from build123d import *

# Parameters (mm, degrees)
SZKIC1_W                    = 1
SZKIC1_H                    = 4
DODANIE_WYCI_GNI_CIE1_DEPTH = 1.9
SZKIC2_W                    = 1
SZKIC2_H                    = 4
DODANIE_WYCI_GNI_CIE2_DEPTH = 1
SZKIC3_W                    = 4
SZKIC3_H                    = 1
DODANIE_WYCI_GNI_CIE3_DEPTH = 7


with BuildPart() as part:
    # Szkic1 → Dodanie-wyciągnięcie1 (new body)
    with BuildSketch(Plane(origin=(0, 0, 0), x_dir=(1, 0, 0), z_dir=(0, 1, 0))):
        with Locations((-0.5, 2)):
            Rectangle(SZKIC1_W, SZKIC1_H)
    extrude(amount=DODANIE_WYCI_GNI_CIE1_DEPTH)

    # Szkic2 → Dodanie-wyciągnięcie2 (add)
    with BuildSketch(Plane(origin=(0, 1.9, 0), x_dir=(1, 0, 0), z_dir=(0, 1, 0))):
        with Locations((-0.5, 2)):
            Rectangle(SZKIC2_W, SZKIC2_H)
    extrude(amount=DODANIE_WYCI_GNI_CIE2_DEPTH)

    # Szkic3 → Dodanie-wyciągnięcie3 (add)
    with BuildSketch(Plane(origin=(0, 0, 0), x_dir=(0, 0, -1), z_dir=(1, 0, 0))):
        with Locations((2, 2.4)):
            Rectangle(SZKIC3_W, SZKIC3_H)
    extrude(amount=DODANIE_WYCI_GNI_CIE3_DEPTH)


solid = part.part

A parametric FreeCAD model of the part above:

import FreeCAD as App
import Part
import Sketcher
from FreeCAD import Vector
Q = App.Units.Quantity


def add_polygon(sketch, points):
    """Adds a closed chain of lines whose ends are joined by coincident constraints."""
    first, n = sketch.GeometryCount, len(points)
    for a, b in zip(points, points[1:] + points[:1]):
        sketch.addGeometry(Part.LineSegment(App.Vector(*a, 0), App.Vector(*b, 0)), False)
    for i in range(n):
        sketch.addConstraint(Sketcher.Constraint("Coincident", first + i, 2, first + (i + 1) % n, 1))

doc = App.newDocument("Part")
body = doc.addObject("PartDesign::Body", "Body")

# Sketch on XZ plane
sketch1 = body.newObject("Sketcher::SketchObject", "Sketch")
sketch1.AttachmentSupport = (doc.getObject("XZ_Plane"), [""])
sketch1.MapMode = "FlatFace"
add_polygon(sketch1, [(-1, -4), (-1, 0), (0, 0), (0, -4)])  # lines 0-3
sketch1.addConstraint(Sketcher.Constraint("Vertical", 0))
sketch1.addConstraint(Sketcher.Constraint("Horizontal", 1))
sketch1.addConstraint(Sketcher.Constraint("Vertical", 2))
sketch1.addConstraint(Sketcher.Constraint("Horizontal", 3))
sketch1.addConstraint(Sketcher.Constraint("Coincident", 1, 2, -1, 1))
sketch1.addConstraint(Sketcher.Constraint("DistanceX", 1, 1, 1, 2, Q("1 mm")))
sketch1.addConstraint(Sketcher.Constraint("DistanceY", 0, 1, 0, 2, Q("4 mm")))
pad1 = body.newObject("PartDesign::Pad", "Pad")
pad1.Profile = sketch1
pad1.Length = 1.9
pad1.Reversed = True

# Sketch on XZ plane
sketch2 = body.newObject("Sketcher::SketchObject", "Sketch001")
sketch2.AttachmentSupport = (doc.getObject("XZ_Plane"), [""])
sketch2.MapMode = "FlatFace"
sketch2.AttachmentOffset = App.Placement(Vector(0, 0, -1.9), App.Rotation())
add_polygon(sketch2, [(-1, -4), (-1, 0), (0, 0), (0, -4)])  # lines 0-3
sketch2.addConstraint(Sketcher.Constraint("Vertical", 0))
sketch2.addConstraint(Sketcher.Constraint("Horizontal", 1))
sketch2.addConstraint(Sketcher.Constraint("Vertical", 2))
sketch2.addConstraint(Sketcher.Constraint("Horizontal", 3))
sketch2.addConstraint(Sketcher.Constraint("Coincident", 1, 2, -1, 1))
sketch2.addConstraint(Sketcher.Constraint("DistanceX", 1, 1, 1, 2, Q("1 mm")))
sketch2.addConstraint(Sketcher.Constraint("DistanceY", 0, 1, 0, 2, Q("4 mm")))
pad2 = body.newObject("PartDesign::Pad", "Pad001")
pad2.Profile = sketch2
pad2.Length = 1
pad2.Reversed = True

# Sketch on YZ plane
sketch3 = body.newObject("Sketcher::SketchObject", "Sketch002")
sketch3.AttachmentSupport = (doc.getObject("YZ_Plane"), [""])
sketch3.MapMode = "FlatFace"
add_polygon(sketch3, [(2.9, 0), (1.9, 0), (1.9, -4), (2.9, -4)])  # lines 0-3
sketch3.addConstraint(Sketcher.Constraint("Horizontal", 0))
sketch3.addConstraint(Sketcher.Constraint("Vertical", 1))
sketch3.addConstraint(Sketcher.Constraint("Horizontal", 2))
sketch3.addConstraint(Sketcher.Constraint("Vertical", 3))
sketch3.addConstraint(Sketcher.Constraint("PointOnObject", 0, 2, -1))
sketch3.addConstraint(Sketcher.Constraint("DistanceX", 0, 2, 0, 1, Q("1 mm")))
sketch3.addConstraint(Sketcher.Constraint("DistanceY", 1, 2, 1, 1, Q("4 mm")))
sketch3.addConstraint(Sketcher.Constraint("DistanceX", -1, 1, 0, 2, Q("1.9 mm")))
pad3 = body.newObject("PartDesign::Pad", "Pad002")
pad3.Profile = sketch3
pad3.Length = 7

doc.recompute()
